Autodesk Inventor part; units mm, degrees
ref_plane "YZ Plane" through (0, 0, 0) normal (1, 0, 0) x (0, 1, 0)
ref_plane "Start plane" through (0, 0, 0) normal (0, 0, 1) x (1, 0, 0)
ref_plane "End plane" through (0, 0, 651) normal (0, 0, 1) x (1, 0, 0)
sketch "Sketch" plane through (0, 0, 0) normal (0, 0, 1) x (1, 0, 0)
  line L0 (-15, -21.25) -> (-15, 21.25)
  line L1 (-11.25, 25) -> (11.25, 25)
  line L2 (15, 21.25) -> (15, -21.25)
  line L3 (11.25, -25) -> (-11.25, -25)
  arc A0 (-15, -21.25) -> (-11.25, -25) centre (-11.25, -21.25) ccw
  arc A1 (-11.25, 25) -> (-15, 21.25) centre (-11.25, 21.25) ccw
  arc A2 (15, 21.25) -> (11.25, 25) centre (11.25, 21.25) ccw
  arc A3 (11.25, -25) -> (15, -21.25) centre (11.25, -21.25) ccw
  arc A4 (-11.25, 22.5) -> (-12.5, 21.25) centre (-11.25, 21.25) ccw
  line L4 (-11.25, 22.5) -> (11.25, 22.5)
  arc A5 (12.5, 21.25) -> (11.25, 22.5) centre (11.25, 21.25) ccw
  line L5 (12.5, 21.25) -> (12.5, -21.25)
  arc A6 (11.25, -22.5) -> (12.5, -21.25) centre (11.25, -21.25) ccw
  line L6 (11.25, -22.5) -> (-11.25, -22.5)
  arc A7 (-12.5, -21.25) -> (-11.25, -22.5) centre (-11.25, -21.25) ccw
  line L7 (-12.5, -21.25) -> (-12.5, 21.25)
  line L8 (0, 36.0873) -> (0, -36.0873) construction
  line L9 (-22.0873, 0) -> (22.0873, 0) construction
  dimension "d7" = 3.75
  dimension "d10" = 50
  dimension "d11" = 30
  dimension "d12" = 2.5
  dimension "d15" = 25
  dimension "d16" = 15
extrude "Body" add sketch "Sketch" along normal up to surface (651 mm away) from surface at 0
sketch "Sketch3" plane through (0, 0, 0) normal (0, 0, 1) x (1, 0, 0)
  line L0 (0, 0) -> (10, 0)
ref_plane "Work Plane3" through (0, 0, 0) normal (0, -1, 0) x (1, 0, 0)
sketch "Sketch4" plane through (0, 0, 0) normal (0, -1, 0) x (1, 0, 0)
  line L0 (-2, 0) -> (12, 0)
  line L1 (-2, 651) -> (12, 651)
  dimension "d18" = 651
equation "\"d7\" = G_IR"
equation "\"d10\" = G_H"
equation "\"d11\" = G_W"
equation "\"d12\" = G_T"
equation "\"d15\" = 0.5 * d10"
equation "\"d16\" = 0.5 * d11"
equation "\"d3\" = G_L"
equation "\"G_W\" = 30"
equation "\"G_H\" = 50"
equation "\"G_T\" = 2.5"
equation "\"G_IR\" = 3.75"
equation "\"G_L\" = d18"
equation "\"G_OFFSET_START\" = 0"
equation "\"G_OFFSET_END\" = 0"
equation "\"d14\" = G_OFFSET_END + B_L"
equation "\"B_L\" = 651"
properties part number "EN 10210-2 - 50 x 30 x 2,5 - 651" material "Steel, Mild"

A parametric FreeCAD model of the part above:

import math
import FreeCAD as App
import Part
import Sketcher
from FreeCAD import Vector

doc = App.newDocument("Part")
body = doc.addObject("PartDesign::Body", "Body")

# Sketch on XY plane
sketch1 = doc.addObject("Sketcher::SketchObject", "Sketch")
body.addObject(sketch1)
sketch1.AttachmentSupport = (doc.XY_Plane, [""])
sketch1.MapMode = "FlatFace"
sketch1.addGeometry([
    Part.LineSegment(Vector(-15, 21.2, 0), Vector(-15, -21.2, 0)),  # 0
    Part.ArcOfCircle(Part.Circle(Vector(-11.2, -21.2, 0), Vector(0, 0, 1), 3.8), math.radians(180), math.radians(270)),  # 1
    Part.LineSegment(Vector(-11.2, -25, 0), Vector(11.2, -25, 0)),  # 2
    Part.ArcOfCircle(Part.Circle(Vector(11.2, -21.2, 0), Vector(0, 0, 1), 3.8), math.radians(-90), math.radians(0)),  # 3
    Part.LineSegment(Vector(15, -21.2, 0), Vector(15, 21.2, 0)),  # 4
    Part.ArcOfCircle(Part.Circle(Vector(11.2, 21.2, 0), Vector(0, 0, 1), 3.8), math.radians(0), math.radians(90)),  # 5
    Part.LineSegment(Vector(11.2, 25, 0), Vector(-11.2, 25, 0)),  # 6
    Part.ArcOfCircle(Part.Circle(Vector(-11.2, 21.2, 0), Vector(0, 0, 1), 3.8), math.radians(90), math.radians(180)),  # 7
    Part.ArcOfCircle(Part.Circle(Vector(-11.2, 21.2, 0), Vector(0, 0, 1), 1.2), math.radians(90), math.radians(180)),  # 8
    Part.LineSegment(Vector(-11.2, 22.5, 0), Vector(11.2, 22.5, 0)),  # 9
    Part.ArcOfCircle(Part.Circle(Vector(11.2, 21.2, 0), Vector(0, 0, 1), 1.2), math.radians(0), math.radians(90)),  # 10
    Part.LineSegment(Vector(12.5, 21.2, 0), Vector(12.5, -21.2, 0)),  # 11
    Part.ArcOfCircle(Part.Circle(Vector(11.2, -21.2, 0), Vector(0, 0, 1), 1.2), math.radians(-90), math.radians(0)),  # 12
    Part.LineSegment(Vector(11.2, -22.5, 0), Vector(-11.2, -22.5, 0)),  # 13
    Part.ArcOfCircle(Part.Circle(Vector(-11.2, -21.2, 0), Vector(0, 0, 1), 1.2), math.radians(180), math.radians(270)),  # 14
    Part.LineSegment(Vector(-12.5, -21.2, 0), Vector(-12.5, 21.2, 0)),  # 15
], False)
sketch1.addConstraint([
    Sketcher.Constraint("Tangent", 0, 2, 1, 1),
    Sketcher.Constraint("Tangent", 1, 2, 2, 1),
    Sketcher.Constraint("Tangent", 2, 2, 3, 1),
    Sketcher.Constraint("Tangent", 3, 2, 4, 1),
    Sketcher.Constraint("Tangent", 4, 2, 5, 1),
    Sketcher.Constraint("Tangent", 5, 2, 6, 1),
    Sketcher.Constraint("Tangent", 6, 2, 7, 1),
    Sketcher.Constraint("Tangent", 7, 2, 0, 1),
    Sketcher.Constraint("Tangent", 8, 1, 9, 1),
    Sketcher.Constraint("Tangent", 9, 2, 10, 2),
    Sketcher.Constraint("Tangent", 10, 1, 11, 1),
    Sketcher.Constraint("Tangent", 11, 2, 12, 2),
    Sketcher.Constraint("Tangent", 12, 1, 13, 1),
    Sketcher.Constraint("Tangent", 13, 2, 14, 2),
    Sketcher.Constraint("Tangent", 14, 1, 15, 1),
    Sketcher.Constraint("Tangent", 15, 2, 8, 2),
    Sketcher.Constraint("Vertical", 0),
    Sketcher.Constraint("Horizontal", 2),
    Sketcher.Constraint("Vertical", 4),
    Sketcher.Constraint("Horizontal", 6),
    Sketcher.Constraint("Horizontal", 9),
    Sketcher.Constraint("Vertical", 11),
    Sketcher.Constraint("Horizontal", 13),
    Sketcher.Constraint("Vertical", 15),
    Sketcher.Constraint("Coincident", 8, 3, 7, 3),
    Sketcher.Constraint("Coincident", 10, 3, 5, 3),
    Sketcher.Constraint("Coincident", 12, 3, 3, 3),
    Sketcher.Constraint("Equal", 1, 3),
    Sketcher.Constraint("Equal", 3, 5),
    Sketcher.Constraint("Equal", 5, 7),
    Sketcher.Constraint("Equal", 12, 14),
    Sketcher.Constraint("Symmetric", 1, 3, 5, 3, -1, 1),
    Sketcher.Constraint("Radius", 1, 3.75),
    Sketcher.Constraint("Radius", 8, 1.25),
    Sketcher.Constraint("DistanceX", 0, 2, -1, 1, 15.0),
    Sketcher.Constraint("DistanceY", 1, 2, -1, 1, 25.0),
])
pad1 = doc.addObject("PartDesign::Pad", "Pad")
body.addObject(pad1)
pad1.Profile = sketch1
pad1.Length = 651

doc.recompute()
